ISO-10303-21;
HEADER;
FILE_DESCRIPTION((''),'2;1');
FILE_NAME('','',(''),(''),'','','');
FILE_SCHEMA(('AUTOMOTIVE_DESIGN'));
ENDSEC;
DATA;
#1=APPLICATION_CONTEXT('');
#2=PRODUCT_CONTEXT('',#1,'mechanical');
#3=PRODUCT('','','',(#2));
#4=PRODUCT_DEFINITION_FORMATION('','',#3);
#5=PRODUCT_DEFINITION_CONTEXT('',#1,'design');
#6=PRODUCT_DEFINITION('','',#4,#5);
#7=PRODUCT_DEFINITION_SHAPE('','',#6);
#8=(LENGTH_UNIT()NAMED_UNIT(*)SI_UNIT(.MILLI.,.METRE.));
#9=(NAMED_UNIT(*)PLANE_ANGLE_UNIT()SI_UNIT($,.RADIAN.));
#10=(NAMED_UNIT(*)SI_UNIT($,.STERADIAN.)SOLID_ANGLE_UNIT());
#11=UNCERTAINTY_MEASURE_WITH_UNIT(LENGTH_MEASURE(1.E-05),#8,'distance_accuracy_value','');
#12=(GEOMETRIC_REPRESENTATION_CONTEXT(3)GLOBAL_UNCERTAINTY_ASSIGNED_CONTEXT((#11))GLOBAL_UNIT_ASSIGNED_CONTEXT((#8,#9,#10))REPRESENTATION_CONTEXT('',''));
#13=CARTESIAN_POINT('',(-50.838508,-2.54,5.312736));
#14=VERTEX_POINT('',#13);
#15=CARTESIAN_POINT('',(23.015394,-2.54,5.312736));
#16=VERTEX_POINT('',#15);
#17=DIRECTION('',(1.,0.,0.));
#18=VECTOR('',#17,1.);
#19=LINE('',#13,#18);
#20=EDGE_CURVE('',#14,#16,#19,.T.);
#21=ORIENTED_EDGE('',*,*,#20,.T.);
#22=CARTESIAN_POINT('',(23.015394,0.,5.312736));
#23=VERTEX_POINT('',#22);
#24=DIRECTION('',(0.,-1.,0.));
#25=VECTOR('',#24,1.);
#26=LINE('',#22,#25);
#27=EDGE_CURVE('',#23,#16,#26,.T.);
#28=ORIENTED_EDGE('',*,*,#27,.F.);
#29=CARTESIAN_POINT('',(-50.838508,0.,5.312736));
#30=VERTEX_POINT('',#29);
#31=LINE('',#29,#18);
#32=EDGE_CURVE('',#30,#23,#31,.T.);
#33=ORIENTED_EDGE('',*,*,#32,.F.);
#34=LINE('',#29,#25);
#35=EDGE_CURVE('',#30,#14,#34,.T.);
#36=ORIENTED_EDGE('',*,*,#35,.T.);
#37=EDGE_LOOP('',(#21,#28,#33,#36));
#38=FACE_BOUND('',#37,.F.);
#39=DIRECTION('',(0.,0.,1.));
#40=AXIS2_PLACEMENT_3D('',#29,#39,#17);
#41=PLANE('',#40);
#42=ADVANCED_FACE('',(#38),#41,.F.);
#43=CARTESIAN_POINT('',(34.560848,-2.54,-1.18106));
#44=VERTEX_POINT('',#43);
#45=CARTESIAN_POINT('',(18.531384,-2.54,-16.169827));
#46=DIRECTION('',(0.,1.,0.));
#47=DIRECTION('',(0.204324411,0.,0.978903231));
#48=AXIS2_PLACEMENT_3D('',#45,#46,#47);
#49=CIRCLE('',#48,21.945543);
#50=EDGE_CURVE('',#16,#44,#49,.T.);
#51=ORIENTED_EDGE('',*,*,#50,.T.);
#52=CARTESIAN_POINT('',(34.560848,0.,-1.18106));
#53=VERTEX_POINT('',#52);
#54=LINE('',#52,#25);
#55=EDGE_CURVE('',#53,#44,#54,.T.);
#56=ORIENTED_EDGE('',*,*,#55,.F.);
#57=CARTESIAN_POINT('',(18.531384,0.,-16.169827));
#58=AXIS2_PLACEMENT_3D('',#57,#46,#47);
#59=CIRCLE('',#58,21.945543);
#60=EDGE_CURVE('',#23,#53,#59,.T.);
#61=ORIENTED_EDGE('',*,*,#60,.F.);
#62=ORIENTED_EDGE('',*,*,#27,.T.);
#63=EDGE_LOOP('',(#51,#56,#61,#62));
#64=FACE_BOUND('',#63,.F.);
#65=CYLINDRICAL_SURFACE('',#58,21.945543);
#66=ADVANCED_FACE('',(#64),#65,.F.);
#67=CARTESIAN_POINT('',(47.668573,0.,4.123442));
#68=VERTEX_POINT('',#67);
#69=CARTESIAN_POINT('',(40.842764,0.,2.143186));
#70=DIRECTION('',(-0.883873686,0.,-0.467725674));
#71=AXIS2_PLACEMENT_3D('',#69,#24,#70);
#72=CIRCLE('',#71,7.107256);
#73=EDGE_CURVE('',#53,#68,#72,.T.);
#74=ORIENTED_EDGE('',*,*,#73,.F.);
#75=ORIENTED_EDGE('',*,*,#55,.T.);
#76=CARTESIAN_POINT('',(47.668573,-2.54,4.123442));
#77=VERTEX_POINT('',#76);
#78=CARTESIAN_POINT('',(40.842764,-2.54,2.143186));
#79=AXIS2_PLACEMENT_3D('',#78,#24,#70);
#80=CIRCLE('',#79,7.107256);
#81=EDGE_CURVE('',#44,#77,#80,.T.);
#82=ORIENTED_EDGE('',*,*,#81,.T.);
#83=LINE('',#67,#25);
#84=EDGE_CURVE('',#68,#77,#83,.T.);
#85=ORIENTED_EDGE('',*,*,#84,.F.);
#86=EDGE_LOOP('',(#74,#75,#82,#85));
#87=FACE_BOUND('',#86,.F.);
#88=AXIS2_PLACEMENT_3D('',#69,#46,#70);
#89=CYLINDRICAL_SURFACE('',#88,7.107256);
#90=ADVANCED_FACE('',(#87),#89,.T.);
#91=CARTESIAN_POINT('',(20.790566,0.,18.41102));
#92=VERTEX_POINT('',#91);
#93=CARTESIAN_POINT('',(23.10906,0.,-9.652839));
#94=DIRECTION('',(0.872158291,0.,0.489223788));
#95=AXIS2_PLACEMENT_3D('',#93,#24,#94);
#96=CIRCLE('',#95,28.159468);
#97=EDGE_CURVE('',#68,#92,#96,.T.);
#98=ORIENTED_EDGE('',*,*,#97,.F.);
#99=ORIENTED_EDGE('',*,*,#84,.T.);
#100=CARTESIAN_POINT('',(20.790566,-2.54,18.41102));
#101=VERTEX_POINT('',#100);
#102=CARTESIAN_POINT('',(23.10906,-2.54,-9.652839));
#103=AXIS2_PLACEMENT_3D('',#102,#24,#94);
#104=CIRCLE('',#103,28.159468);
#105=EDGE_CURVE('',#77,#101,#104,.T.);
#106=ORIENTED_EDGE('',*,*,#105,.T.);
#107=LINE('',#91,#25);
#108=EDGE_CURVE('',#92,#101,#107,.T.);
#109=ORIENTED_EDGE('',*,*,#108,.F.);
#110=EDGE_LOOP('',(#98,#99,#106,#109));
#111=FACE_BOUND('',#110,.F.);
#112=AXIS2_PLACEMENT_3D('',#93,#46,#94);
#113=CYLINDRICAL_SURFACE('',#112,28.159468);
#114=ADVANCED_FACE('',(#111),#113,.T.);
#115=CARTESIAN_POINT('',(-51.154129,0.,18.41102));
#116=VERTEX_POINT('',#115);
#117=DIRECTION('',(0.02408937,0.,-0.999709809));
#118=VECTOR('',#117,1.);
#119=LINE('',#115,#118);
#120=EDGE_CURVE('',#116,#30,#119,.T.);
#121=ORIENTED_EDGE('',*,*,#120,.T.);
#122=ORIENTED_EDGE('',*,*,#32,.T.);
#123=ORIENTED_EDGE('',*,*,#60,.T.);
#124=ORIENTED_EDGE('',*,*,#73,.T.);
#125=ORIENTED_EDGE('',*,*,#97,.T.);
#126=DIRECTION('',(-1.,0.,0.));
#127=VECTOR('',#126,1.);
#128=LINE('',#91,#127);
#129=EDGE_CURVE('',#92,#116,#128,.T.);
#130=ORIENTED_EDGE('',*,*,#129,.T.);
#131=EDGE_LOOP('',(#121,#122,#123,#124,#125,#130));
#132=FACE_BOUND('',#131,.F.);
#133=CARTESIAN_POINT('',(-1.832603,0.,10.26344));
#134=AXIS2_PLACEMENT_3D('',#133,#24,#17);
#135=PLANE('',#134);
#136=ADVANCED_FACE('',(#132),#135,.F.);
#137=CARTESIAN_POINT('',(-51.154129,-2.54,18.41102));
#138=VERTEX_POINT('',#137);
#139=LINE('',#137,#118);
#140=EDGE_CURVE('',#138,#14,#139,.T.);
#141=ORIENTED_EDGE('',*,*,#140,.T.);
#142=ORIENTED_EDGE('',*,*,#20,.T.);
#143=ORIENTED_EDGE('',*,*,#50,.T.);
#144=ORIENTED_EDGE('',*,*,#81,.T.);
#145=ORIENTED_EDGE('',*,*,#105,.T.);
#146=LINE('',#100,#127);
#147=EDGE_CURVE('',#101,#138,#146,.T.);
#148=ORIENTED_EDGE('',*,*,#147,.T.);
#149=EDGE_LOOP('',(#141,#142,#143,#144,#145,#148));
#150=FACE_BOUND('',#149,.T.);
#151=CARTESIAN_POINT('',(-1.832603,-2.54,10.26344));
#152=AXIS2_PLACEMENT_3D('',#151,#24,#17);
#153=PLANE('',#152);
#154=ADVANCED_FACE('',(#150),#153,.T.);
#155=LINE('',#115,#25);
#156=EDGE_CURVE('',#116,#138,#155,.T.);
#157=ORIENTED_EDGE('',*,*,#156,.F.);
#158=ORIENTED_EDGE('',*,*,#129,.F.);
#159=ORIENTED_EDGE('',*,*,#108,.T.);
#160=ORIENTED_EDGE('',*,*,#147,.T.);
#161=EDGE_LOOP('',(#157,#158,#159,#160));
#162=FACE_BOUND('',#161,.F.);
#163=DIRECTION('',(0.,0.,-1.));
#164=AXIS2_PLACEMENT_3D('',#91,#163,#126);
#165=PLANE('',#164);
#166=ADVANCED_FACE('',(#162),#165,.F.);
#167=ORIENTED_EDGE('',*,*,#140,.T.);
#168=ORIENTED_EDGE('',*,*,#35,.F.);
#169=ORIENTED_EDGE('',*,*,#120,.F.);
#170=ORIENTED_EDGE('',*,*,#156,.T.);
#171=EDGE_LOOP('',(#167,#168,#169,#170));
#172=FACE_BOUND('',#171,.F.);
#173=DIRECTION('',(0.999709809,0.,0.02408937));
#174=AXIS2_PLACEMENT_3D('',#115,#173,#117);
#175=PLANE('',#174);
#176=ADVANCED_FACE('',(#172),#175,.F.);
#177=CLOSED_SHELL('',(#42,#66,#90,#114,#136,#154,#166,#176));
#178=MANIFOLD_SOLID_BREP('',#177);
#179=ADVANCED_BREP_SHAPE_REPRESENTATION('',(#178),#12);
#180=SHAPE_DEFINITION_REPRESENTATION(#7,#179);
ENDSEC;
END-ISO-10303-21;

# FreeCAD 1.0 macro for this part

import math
import FreeCAD as App
import Part
import Sketcher

V = App.Vector
Q = App.Units.Quantity

doc = App.newDocument("Part")
body = doc.addObject("PartDesign::Body", "Body")

sketch1 = doc.addObject("Sketcher::SketchObject", "Sketch")
body.addObject(sketch1)
sketch1.AttachmentSupport = (doc.XZ_Plane, [""])
sketch1.MapMode = "FlatFace"
sketch1.addGeometry([
    Part.LineSegment(V(21, 18, 0), V(-51, 18, 0)),
    Part.LineSegment(V(-51, 18, 0), V(-51, 5, 0)),
    Part.LineSegment(V(-51, 5, 0), V(23, 5, 0)),
    Part.ArcOfCircle(Part.Circle(V(19, -16, 0), V(0, 0, 1), 22), math.radians(43), math.radians(78)),
    Part.ArcOfCircle(Part.Circle(V(41, 2, 0), V(0, 0, 1), 7), math.radians(-152), math.radians(16)),
    Part.ArcOfCircle(Part.Circle(V(23, -10, 0), V(0, 0, 1), 28), math.radians(29), math.radians(95)),
], False)
sketch1.addConstraint([
    Sketcher.Constraint("Coincident", 0, 2, 1, 1),
    Sketcher.Constraint("Coincident", 1, 2, 2, 1),
    Sketcher.Constraint("Coincident", 2, 2, 3, 2),
    Sketcher.Constraint("Coincident", 3, 1, 4, 1),
    Sketcher.Constraint("Coincident", 4, 2, 5, 1),
    Sketcher.Constraint("Coincident", 5, 2, 0, 1),
    Sketcher.Constraint("Horizontal", 0),
    Sketcher.Constraint("Horizontal", 2),
    Sketcher.Constraint("Radius", 3, Q("21.945543 mm")),
    Sketcher.Constraint("Radius", 4, Q("7.107256 mm")),
    Sketcher.Constraint("Radius", 5, Q("28.159468 mm")),
    Sketcher.Constraint("DistanceY", 3, 1, 4, 2, Q("5.304502 mm")),
    Sketcher.Constraint("DistanceX", 5, 2, 4, 3, Q("20.052198 mm")),
    Sketcher.Constraint("DistanceX", 0, 2, 0, 1, Q("71.944695 mm")),
    Sketcher.Constraint("DistanceX", 2, 1, 2, 2, Q("73.853902 mm")),
    Sketcher.Constraint("DistanceX", -1, 1, 5, 3, Q("23.10906 mm")),
    Sketcher.Constraint("DistanceY", 5, 3, -1, 1, Q("9.652839 mm")),
    Sketcher.Constraint("DistanceX", 0, 2, -1, 1, Q("51.154129 mm")),
    Sketcher.Constraint("DistanceX", -1, 1, 3, 1, Q("34.560848 mm")),
    Sketcher.Constraint("DistanceX", 3, 3, 4, 3, Q("22.31138 mm")),
    Sketcher.Constraint("DistanceX", 0, 2, 1, 2, Q("0.315621 mm")),
])
pad1 = doc.addObject("PartDesign::Pad", "Pad")
body.addObject(pad1)
pad1.Profile = sketch1
pad1.Length = Q("0.1 in")

doc.recompute()
